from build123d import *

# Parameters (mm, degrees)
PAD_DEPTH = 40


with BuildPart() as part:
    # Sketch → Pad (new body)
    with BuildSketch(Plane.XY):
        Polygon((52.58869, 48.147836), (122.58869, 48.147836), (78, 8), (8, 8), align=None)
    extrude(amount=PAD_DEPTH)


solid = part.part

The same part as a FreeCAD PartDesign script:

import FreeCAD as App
import Part
import Sketcher
Q = App.Units.Quantity


def add_polygon(sketch, points):
    """Adds a closed chain of lines whose ends are joined by coincident constraints."""
    first, n = sketch.GeometryCount, len(points)
    for a, b in zip(points, points[1:] + points[:1]):
        sketch.addGeometry(Part.LineSegment(App.Vector(*a, 0), App.Vector(*b, 0)), False)
    for i in range(n):
        sketch.addConstraint(Sketcher.Constraint("Coincident", first + i, 2, first + (i + 1) % n, 1))

doc = App.newDocument("Part")
body = doc.addObject("PartDesign::Body", "Body")

# Sketch on XY plane
sketch1 = body.newObject("Sketcher::SketchObject", "Sketch")
sketch1.AttachmentSupport = (doc.getObject("XY_Plane"), [""])
sketch1.MapMode = "FlatFace"
add_polygon(sketch1, [(123, 48), (53, 48), (8, 8), (78, 8)])  # lines 0-3
sketch1.addConstraint([
    Sketcher.Constraint("Horizontal", 0),
    Sketcher.Constraint("Horizontal", 2),
    Sketcher.Constraint("Parallel", 1, 3),
    Sketcher.Constraint("DistanceX", 0, 2, 0, 1, Q("70 mm")),
    Sketcher.Constraint("Angle", 1, Q("-138.000001 deg")),
    Sketcher.Constraint("Distance", 1, Q("60 mm")),
    Sketcher.Constraint("DistanceX", -1, 1, 1, 2, Q("8 mm")),
    Sketcher.Constraint("DistanceY", -1, 1, 1, 2, Q("8 mm")),
])
pad1 = body.newObject("PartDesign::Pad", "Pad")
pad1.Profile = sketch1
pad1.Length = 40

doc.recompute()
